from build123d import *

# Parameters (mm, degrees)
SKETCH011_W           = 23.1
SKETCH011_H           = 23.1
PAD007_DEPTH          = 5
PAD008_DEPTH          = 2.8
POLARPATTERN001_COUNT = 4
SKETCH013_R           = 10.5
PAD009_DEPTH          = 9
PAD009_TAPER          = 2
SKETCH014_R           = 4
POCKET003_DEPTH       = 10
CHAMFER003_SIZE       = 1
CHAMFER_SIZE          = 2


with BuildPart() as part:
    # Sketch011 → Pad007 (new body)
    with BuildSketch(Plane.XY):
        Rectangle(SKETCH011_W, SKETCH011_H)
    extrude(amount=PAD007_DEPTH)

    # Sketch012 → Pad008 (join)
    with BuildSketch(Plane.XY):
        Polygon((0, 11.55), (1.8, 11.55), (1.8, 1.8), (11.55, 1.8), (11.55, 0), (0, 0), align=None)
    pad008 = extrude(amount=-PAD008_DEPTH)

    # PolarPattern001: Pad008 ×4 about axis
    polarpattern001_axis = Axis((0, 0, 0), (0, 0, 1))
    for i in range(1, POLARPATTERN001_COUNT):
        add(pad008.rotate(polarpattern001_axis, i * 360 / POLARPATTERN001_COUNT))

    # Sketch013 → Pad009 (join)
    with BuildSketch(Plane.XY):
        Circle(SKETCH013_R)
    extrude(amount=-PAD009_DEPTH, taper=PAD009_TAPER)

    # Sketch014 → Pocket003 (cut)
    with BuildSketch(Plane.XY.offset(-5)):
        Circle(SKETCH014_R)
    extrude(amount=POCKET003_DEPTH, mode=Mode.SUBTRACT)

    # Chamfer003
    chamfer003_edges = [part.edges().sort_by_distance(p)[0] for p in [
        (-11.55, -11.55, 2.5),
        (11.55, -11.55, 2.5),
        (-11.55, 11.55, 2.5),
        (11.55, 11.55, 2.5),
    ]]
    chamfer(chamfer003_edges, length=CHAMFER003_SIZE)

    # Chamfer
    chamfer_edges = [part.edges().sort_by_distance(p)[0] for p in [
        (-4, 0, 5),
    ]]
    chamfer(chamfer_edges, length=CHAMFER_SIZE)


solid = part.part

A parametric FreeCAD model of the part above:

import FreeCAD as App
import Part
import Sketcher

V = App.Vector


def edges_at(feature, points):
    """Names of the edges that pass closest to the given points."""
    edges = feature.Shape.Edges
    near = lambda p: min(range(len(edges)), key=lambda i: edges[i].distToShape(Part.Vertex(*p))[0])
    return sorted({f"Edge{near(p) + 1}" for p in points})


def add_polygon(sketch, points):
    """Adds a closed chain of lines whose ends are joined by coincident constraints."""
    first, n = sketch.GeometryCount, len(points)
    for a, b in zip(points, points[1:] + points[:1]):
        sketch.addGeometry(Part.LineSegment(App.Vector(*a, 0), App.Vector(*b, 0)), False)
    for i in range(n):
        sketch.addConstraint(Sketcher.Constraint("Coincident", first + i, 2, first + (i + 1) % n, 1))

doc = App.newDocument("Part")
body = doc.addObject("PartDesign::Body", "Body")

sketch1 = body.newObject("Sketcher::SketchObject", "Sketch")
sketch1.AttachmentSupport = (doc.getObject("XY_Plane"), [""])
sketch1.MapMode = "FlatFace"
add_polygon(sketch1, [(-12, 12), (-12, -12), (12, -12), (12, 12)])
sketch1.addConstraint(Sketcher.Constraint("Vertical", 0))
sketch1.addConstraint(Sketcher.Constraint("Horizontal", 1))
sketch1.addConstraint(Sketcher.Constraint("Vertical", 2))
sketch1.addConstraint(Sketcher.Constraint("Horizontal", 3))
sketch1.addConstraint(Sketcher.Constraint("Symmetric", 0, 2, 2, 2, -1, 1))
sketch1.addConstraint(Sketcher.Constraint("Equal", 3, 0))
sketch1.addConstraint(Sketcher.Constraint("DistanceX", 1, 1, 1, 2, 23.1))
pad1 = body.newObject("PartDesign::Pad", "Pad")
pad1.Profile = sketch1
pad1.Length = 5

sketch2 = body.newObject("Sketcher::SketchObject", "Sketch001")
sketch2.AttachmentSupport = (doc.getObject("XY_Plane"), [""])
sketch2.MapMode = "FlatFace"
add_polygon(sketch2, [(1.8, 11.6), (0, 11.6), (0, 0), (11.6, 0), (11.6, 1.8), (1.8, 1.8)])
sketch2.addConstraint(Sketcher.Constraint("Horizontal", 0))
sketch2.addConstraint(Sketcher.Constraint("Vertical", 1))
sketch2.addConstraint(Sketcher.Constraint("Horizontal", 2))
sketch2.addConstraint(Sketcher.Constraint("Vertical", 3))
sketch2.addConstraint(Sketcher.Constraint("Horizontal", 4))
sketch2.addConstraint(Sketcher.Constraint("Vertical", 5))
sketch2.addConstraint(Sketcher.Constraint("Coincident", 1, 2, -1, 1))
sketch2.addConstraint(Sketcher.Constraint("Equal", 2, 1))
sketch2.addConstraint(Sketcher.Constraint("Equal", 0, 3))
sketch2.addConstraint(Sketcher.Constraint("DistanceX", 0, 2, 0, 1, 1.8))
sketch2.addConstraint(Sketcher.Constraint("DistanceX", 2, 1, 2, 2, 11.55))
pad2 = body.newObject("PartDesign::Pad", "Pad001")
pad2.Profile = sketch2
pad2.Length = 2.8
pad2.Reversed = True
doc.recompute()

polarpattern = body.newObject("PartDesign::PolarPattern", "PolarPattern")
polarpattern.Originals = [pad2]
polarpattern.Axis = (doc.getObject("Z_Axis"), [""])
polarpattern.Angle = 360
polarpattern.Occurrences = 4
body.Tip = polarpattern

sketch3 = body.newObject("Sketcher::SketchObject", "Sketch002")
sketch3.AttachmentSupport = (doc.getObject("XY_Plane"), [""])
sketch3.MapMode = "FlatFace"
sketch3.addGeometry(Part.Circle(V(0, 0, 0), V(0, 0, 1), 10), False)
sketch3.addConstraint(Sketcher.Constraint("Coincident", 0, 3, -1, 1))
sketch3.addConstraint(Sketcher.Constraint("Diameter", 0, 21.0))
pad3 = body.newObject("PartDesign::Pad", "Pad002")
pad3.Profile = sketch3
pad3.Length = 9
pad3.Reversed = True
pad3.TaperAngle = -2

sketch4 = body.newObject("Sketcher::SketchObject", "Sketch003")
sketch4.AttachmentSupport = (doc.getObject("XY_Plane"), [""])
sketch4.MapMode = "FlatFace"
sketch4.AttachmentOffset = App.Placement(V(0, 0, -5), App.Rotation())
sketch4.addGeometry(Part.Circle(V(0, 0, 0), V(0, 0, 1), 4), False)
sketch4.addConstraint(Sketcher.Constraint("Coincident", 0, 3, -1, 1))
sketch4.addConstraint(Sketcher.Constraint("Diameter", 0, 8.0))
pocket1 = body.newObject("PartDesign::Pocket", "Pocket")
pocket1.Profile = sketch4
pocket1.Length = 10
pocket1.Reversed = True
doc.recompute()

chamfer = body.newObject("PartDesign::Chamfer", "Chamfer")
chamfer.Base = (pocket1, edges_at(pocket1, [
    (-11.55, -11.55, 2.5),
    (11.55, -11.55, 2.5),
    (-11.55, 11.55, 2.5),
    (11.55, 11.55, 2.5),
]))
chamfer.Size = 1
doc.recompute()

chamfer2 = body.newObject("PartDesign::Chamfer", "Chamfer001")
chamfer2.Base = (chamfer, edges_at(chamfer, [(-4, 0, 5)]))
chamfer2.Size = 2

doc.recompute()
